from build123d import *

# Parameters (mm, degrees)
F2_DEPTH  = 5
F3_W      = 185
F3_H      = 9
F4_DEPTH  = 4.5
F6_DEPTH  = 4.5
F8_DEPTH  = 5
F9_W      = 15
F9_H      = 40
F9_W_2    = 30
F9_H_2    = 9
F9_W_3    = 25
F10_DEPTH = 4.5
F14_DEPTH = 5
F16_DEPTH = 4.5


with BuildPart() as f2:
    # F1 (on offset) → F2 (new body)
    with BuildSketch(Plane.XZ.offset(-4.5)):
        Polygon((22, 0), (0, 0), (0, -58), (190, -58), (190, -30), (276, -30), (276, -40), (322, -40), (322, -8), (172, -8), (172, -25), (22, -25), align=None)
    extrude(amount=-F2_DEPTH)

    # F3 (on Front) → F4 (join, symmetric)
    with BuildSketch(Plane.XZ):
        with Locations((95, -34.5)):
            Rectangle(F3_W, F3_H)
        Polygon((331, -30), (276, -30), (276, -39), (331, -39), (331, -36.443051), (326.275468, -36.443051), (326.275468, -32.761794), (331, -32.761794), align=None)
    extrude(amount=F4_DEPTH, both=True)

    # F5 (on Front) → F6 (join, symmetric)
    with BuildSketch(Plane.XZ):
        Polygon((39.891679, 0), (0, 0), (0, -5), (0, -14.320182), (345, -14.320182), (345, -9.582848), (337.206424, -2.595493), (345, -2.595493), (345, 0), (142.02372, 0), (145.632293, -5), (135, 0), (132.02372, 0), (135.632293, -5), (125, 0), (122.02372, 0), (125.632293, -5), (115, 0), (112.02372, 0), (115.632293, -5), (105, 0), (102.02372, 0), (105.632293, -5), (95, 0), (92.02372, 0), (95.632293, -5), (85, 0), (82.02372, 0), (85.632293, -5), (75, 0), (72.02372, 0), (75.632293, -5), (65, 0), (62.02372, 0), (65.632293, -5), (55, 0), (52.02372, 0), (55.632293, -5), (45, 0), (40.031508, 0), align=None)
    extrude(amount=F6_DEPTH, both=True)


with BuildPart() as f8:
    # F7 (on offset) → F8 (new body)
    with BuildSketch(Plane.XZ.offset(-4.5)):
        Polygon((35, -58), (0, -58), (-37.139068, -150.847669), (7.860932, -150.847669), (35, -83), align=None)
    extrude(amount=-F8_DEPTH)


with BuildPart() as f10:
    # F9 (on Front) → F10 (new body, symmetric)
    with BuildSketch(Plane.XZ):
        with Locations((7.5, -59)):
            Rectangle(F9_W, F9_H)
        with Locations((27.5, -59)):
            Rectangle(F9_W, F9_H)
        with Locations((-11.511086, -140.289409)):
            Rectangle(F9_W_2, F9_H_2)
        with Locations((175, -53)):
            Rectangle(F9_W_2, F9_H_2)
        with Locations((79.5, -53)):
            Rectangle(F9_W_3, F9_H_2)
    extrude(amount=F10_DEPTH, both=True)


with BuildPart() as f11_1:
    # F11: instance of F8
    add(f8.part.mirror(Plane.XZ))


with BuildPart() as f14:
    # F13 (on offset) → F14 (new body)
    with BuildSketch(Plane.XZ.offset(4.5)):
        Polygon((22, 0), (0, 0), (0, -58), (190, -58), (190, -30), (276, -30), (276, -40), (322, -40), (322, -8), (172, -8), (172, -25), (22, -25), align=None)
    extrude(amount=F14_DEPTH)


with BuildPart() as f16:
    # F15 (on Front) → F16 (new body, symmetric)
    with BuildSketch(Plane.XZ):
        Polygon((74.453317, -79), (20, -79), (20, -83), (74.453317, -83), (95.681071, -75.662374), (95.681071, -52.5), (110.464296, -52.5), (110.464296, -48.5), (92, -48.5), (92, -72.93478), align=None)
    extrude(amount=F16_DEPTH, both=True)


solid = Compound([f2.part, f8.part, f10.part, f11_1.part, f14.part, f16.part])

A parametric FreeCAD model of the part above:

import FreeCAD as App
import Part
import Sketcher


def add_polygon(sketch, points):
    """Adds a closed chain of lines whose ends are joined by coincident constraints."""
    first, n = sketch.GeometryCount, len(points)
    for a, b in zip(points, points[1:] + points[:1]):
        sketch.addGeometry(Part.LineSegment(App.Vector(*a, 0), App.Vector(*b, 0)), False)
    for i in range(n):
        sketch.addConstraint(Sketcher.Constraint("Coincident", first + i, 2, first + (i + 1) % n, 1))

doc = App.newDocument("Part")
body = doc.addObject("PartDesign::Body", "Body")

# Sketch on XZ plane
sketch1 = body.newObject("Sketcher::SketchObject", "Sketch")
sketch1.AttachmentSupport = (doc.getObject("XZ_Plane"), [""])
sketch1.MapMode = "FlatFace"
sketch1.AttachmentOffset = App.Placement(App.Vector(0, 0, -4.5), App.Rotation())
add_polygon(sketch1, [(22, 0), (0, 0), (0, -58), (190, -58), (190, -30), (276, -30), (276, -40), (322, -40), (322, -8), (172, -8), (172, -25), (22, -25)])  # lines 0-11
sketch1.addConstraint([
    Sketcher.Constraint("Horizontal", 0),
    Sketcher.Constraint("Vertical", 1),
    Sketcher.Constraint("Horizontal", 2),
    Sketcher.Constraint("Vertical", 3),
    Sketcher.Constraint("Horizontal", 4),
    Sketcher.Constraint("Vertical", 5),
    Sketcher.Constraint("Horizontal", 6),
    Sketcher.Constraint("Vertical", 7),
    Sketcher.Constraint("Horizontal", 8),
    Sketcher.Constraint("Vertical", 9),
    Sketcher.Constraint("Horizontal", 10),
    Sketcher.Constraint("Vertical", 11),
    Sketcher.Constraint("Coincident", 0, 2, -1, 1),
    Sketcher.Constraint("Equal", 8, 10),
    Sketcher.Constraint("DistanceX", 0, 2, 0, 1, 22.0),
    Sketcher.Constraint("DistanceX", 2, 1, 2, 2, 190.0),
    Sketcher.Constraint("DistanceX", 4, 1, 4, 2, 86.0),
    Sketcher.Constraint("DistanceX", 6, 1, 6, 2, 46.0),
    Sketcher.Constraint("DistanceY", 1, 2, 1, 1, 58.0),
    Sketcher.Constraint("DistanceY", 3, 1, 3, 2, 28.0),
    Sketcher.Constraint("DistanceY", 5, 2, 5, 1, 10.0),
    Sketcher.Constraint("DistanceY", 7, 1, 7, 2, 32.0),
    Sketcher.Constraint("DistanceY", 9, 2, 9, 1, 17.0),
])
pad1 = body.newObject("PartDesign::Pad", "Pad")
pad1.Profile = sketch1
pad1.Length = 5
pad1.Reversed = True

# Sketch on XZ plane
sketch2 = body.newObject("Sketcher::SketchObject", "Sketch001")
sketch2.AttachmentSupport = (doc.getObject("XZ_Plane"), [""])
sketch2.MapMode = "FlatFace"
add_polygon(sketch2, [(2.5, -30), (2.5, -39), (187.5, -39), (187.5, -30)])  # lines 0-3
add_polygon(sketch2, [(331, -30), (276, -30), (276, -39), (331, -39), (331, -36.4), (326.3, -36.4), (326.3, -32.8), (331, -32.8)])  # lines 4-11
sketch2.addConstraint([
    Sketcher.Constraint("Vertical", 0),
    Sketcher.Constraint("Horizontal", 1),
    Sketcher.Constraint("Vertical", 2),
    Sketcher.Constraint("Horizontal", 3),
    Sketcher.Constraint("Horizontal", 4),
    Sketcher.Constraint("Vertical", 5),
    Sketcher.Constraint("Horizontal", 6),
    Sketcher.Constraint("Vertical", 7),
    Sketcher.Constraint("Horizontal", 8),
    Sketcher.Constraint("Vertical", 9),
    Sketcher.Constraint("Horizontal", 10),
    Sketcher.Constraint("Vertical", 11),
    Sketcher.Constraint("Horizontal", 3, 2, 4, 2),
    Sketcher.Constraint("Horizontal", 1, 2, 5, 2),
    Sketcher.Constraint("Vertical", 7, 2, 10, 2),
    Sketcher.Constraint("DistanceX", 1, 1, 1, 2, 185.0),
    Sketcher.Constraint("DistanceX", 4, 2, 4, 1, 55.0),
    Sketcher.Constraint("DistanceY", 0, 2, 0, 1, 9.0),
    Sketcher.Constraint("DistanceY", 0, 2, -1, 1, 39.0),
    Sketcher.Constraint("DistanceX", -1, 1, 4, 2, 276.0),
    Sketcher.Constraint("DistanceX", -1, 1, 0, 2, 2.5),
    Sketcher.Constraint("DistanceY", 7, 1, 7, 2, 2.556949),
    Sketcher.Constraint("DistanceX", 8, 2, 8, 1, 4.724532),
    Sketcher.Constraint("DistanceY", 9, 1, 9, 2, 3.681257),
])
pad2 = body.newObject("PartDesign::Pad", "Pad001")
pad2.Profile = sketch2
pad2.Length = 9
pad2.Midplane = True

# Sketch on XZ plane
sketch3 = body.newObject("Sketcher::SketchObject", "Sketch002")
sketch3.AttachmentSupport = (doc.getObject("XZ_Plane"), [""])
sketch3.MapMode = "FlatFace"
add_polygon(sketch3, [(0, 0), (0, -14.3), (345, -14.3), (345, -9.6), (337.2, -2.6), (345, -2.6), (345, 0), (142, 0), (145.6, -5), (135, 0), (132, 0), (135.6, -5), (125, 0), (122, 0), (125.6, -5), (115, 0), (112, 0), (115.6, -5), (105, 0), (102, 0), (105.6, -5), (95, 0), (92, 0), (95.6, -5), (85, 0), (82, 0), (85.6, -5), (75, 0), (72, 0), (75.6, -5), (65, 0), (62, 0), (65.6, -5), (55, 0), (52, 0), (55.6, -5), (45, 0)])  # lines 0-36
sketch3.addConstraint([
    Sketcher.Constraint("Vertical", 0),
    Sketcher.Constraint("Horizontal", 1),
    Sketcher.Constraint("Vertical", 2),
    Sketcher.Constraint("Horizontal", 4),
    Sketcher.Constraint("Vertical", 5),
    Sketcher.Constraint("Horizontal", 6),
    Sketcher.Constraint("Horizontal", 9),
    Sketcher.Constraint("Horizontal", 12),
    Sketcher.Constraint("Horizontal", 15),
    Sketcher.Constraint("Horizontal", 18),
    Sketcher.Constraint("Horizontal", 21),
    Sketcher.Constraint("Horizontal", 24),
    Sketcher.Constraint("Horizontal", 27),
    Sketcher.Constraint("Horizontal", 30),
    Sketcher.Constraint("Horizontal", 33),
    Sketcher.Constraint("Horizontal", 36),
    Sketcher.Constraint("Coincident", 36, 2, -1, 1),
    Sketcher.Constraint("PointOnObject", 5, 2, -1),
    Sketcher.Constraint("PointOnObject", 8, 2, -1),
    Sketcher.Constraint("PointOnObject", 11, 2, -1),
    Sketcher.Constraint("PointOnObject", 14, 2, -1),
    Sketcher.Constraint("PointOnObject", 17, 2, -1),
    Sketcher.Constraint("PointOnObject", 20, 2, -1),
    Sketcher.Constraint("PointOnObject", 23, 2, -1),
    Sketcher.Constraint("PointOnObject", 26, 2, -1),
    Sketcher.Constraint("PointOnObject", 29, 2, -1),
    Sketcher.Constraint("PointOnObject", 32, 2, -1),
    Sketcher.Constraint("Parallel", 7, 10),
    Sketcher.Constraint("Parallel", 8, 11),
    Sketcher.Constraint("Parallel", 10, 13),
    Sketcher.Constraint("Parallel", 11, 14),
    Sketcher.Constraint("Parallel", 13, 16),
    Sketcher.Constraint("Parallel", 14, 17),
    Sketcher.Constraint("Parallel", 16, 19),
    Sketcher.Constraint("Parallel", 17, 20),
    Sketcher.Constraint("Parallel", 19, 22),
    Sketcher.Constraint("Parallel", 20, 23),
    Sketcher.Constraint("Parallel", 22, 25),
    Sketcher.Constraint("Parallel", 23, 26),
    Sketcher.Constraint("Parallel", 25, 28),
    Sketcher.Constraint("Parallel", 26, 29),
    Sketcher.Constraint("Parallel", 28, 31),
    Sketcher.Constraint("Parallel", 29, 32),
    Sketcher.Constraint("Parallel", 31, 34),
    Sketcher.Constraint("Parallel", 32, 35),
    Sketcher.Constraint("Horizontal", 7, 2, 10, 2),
    Sketcher.Constraint("Horizontal", 10, 2, 13, 2),
    Sketcher.Constraint("Horizontal", 13, 2, 16, 2),
    Sketcher.Constraint("Horizontal", 16, 2, 19, 2),
    Sketcher.Constraint("Horizontal", 19, 2, 22, 2),
    Sketcher.Constraint("Horizontal", 22, 2, 25, 2),
    Sketcher.Constraint("Horizontal", 25, 2, 28, 2),
    Sketcher.Constraint("Horizontal", 28, 2, 31, 2),
    Sketcher.Constraint("Horizontal", 31, 2, 34, 2),
    Sketcher.Constraint("Vertical", 2, 2, 4, 2),
    Sketcher.Constraint("Equal", 9, 12),
    Sketcher.Constraint("Equal", 12, 15),
    Sketcher.Constraint("Equal", 15, 18),
    Sketcher.Constraint("Equal", 18, 21),
    Sketcher.Constraint("Equal", 21, 24),
    Sketcher.Constraint("Equal", 24, 27),
    Sketcher.Constraint("Equal", 27, 30),
    Sketcher.Constraint("Equal", 30, 33),
    Sketcher.Constraint("DistanceX", 1, 1, 1, 2, 345.0),
    Sketcher.Constraint("DistanceX", 36, 2, 36, 1, 45.0),
    Sketcher.Constraint("DistanceY", 7, 2, -1, 1, 5.0),
    Sketcher.Constraint("DistanceX", -1, 1, 8, 2, 135.0),
    Sketcher.Constraint("DistanceX", 6, 2, 6, 1, 202.97628),
    Sketcher.Constraint("Distance", 7, 6.166182),
    Sketcher.Constraint("DistanceX", 4, 1, 4, 2, 7.793576),
    Sketcher.Constraint("DistanceY", 0, 2, 0, 1, 14.320182),
    Sketcher.Constraint("DistanceY", 2, 1, 2, 2, 4.737334),
    Sketcher.Constraint("DistanceY", 5, 1, 5, 2, 2.595493),
])
pad3 = body.newObject("PartDesign::Pad", "Pad002")
pad3.Profile = sketch3
pad3.Length = 9
pad3.Midplane = True
body2 = doc.addObject("PartDesign::Body", "Body001")

# Sketch on XZ plane
sketch4 = body2.newObject("Sketcher::SketchObject", "Sketch003")
sketch4.AttachmentSupport = (doc.getObject("XZ_Plane001"), [""])
sketch4.MapMode = "FlatFace"
sketch4.AttachmentOffset = App.Placement(App.Vector(0, 0, -4.5), App.Rotation())
add_polygon(sketch4, [(35, -58), (0, -58), (-37, -151), (8, -151), (35, -83)])  # lines 0-4
sketch4.addConstraint([
    Sketcher.Constraint("Horizontal", 0),
    Sketcher.Constraint("Horizontal", 2),
    Sketcher.Constraint("Vertical", 4),
    Sketcher.Constraint("PointOnObject", 0, 2, -2),
    Sketcher.Constraint("Parallel", 1, 3),
    Sketcher.Constraint("DistanceX", 0, 2, 0, 1, 35.0),
    Sketcher.Constraint("DistanceX", 2, 1, 2, 2, 45.0),
    Sketcher.Constraint("DistanceY", 4, 1, 4, 2, 25.0),
    Sketcher.Constraint("Distance", 1, 100.0),
    Sketcher.Constraint("DistanceY", 0, 2, -1, 1, 58.0),
])
pad4 = body2.newObject("PartDesign::Pad", "Pad003")
pad4.Profile = sketch4
pad4.Length = 5
pad4.Reversed = True
body3 = doc.addObject("PartDesign::Body", "Body002")
body3.AllowCompound = True

# Sketch on XZ plane
sketch5 = body3.newObject("Sketcher::SketchObject", "Sketch004")
sketch5.AttachmentSupport = (doc.getObject("XZ_Plane002"), [""])
sketch5.MapMode = "FlatFace"
add_polygon(sketch5, [(0, -39), (0, -79), (15, -79), (15, -39)])  # lines 0-3
add_polygon(sketch5, [(20, -39), (20, -79), (35, -79), (35, -39)])  # lines 4-7
add_polygon(sketch5, [(-27, -136), (-27, -145), (3, -145), (3, -136)])  # lines 8-11
add_polygon(sketch5, [(160, -48), (160, -58), (190, -58), (190, -48)])  # lines 12-15
add_polygon(sketch5, [(67, -48), (67, -58), (92, -58), (92, -48)])  # lines 16-19
sketch5.addConstraint([
    Sketcher.Constraint("Vertical", 0),
    Sketcher.Constraint("Horizontal", 1),
    Sketcher.Constraint("Vertical", 2),
    Sketcher.Constraint("Horizontal", 3),
    Sketcher.Constraint("Vertical", 4),
    Sketcher.Constraint("Horizontal", 5),
    Sketcher.Constraint("Vertical", 6),
    Sketcher.Constraint("Horizontal", 7),
    Sketcher.Constraint("Vertical", 8),
    Sketcher.Constraint("Horizontal", 9),
    Sketcher.Constraint("Vertical", 10),
    Sketcher.Constraint("Horizontal", 11),
    Sketcher.Constraint("Vertical", 12),
    Sketcher.Constraint("Horizontal", 13),
    Sketcher.Constraint("Vertical", 14),
    Sketcher.Constraint("Horizontal", 15),
    Sketcher.Constraint("Vertical", 16),
    Sketcher.Constraint("Horizontal", 17),
    Sketcher.Constraint("Vertical", 18),
    Sketcher.Constraint("Horizontal", 19),
    Sketcher.Constraint("PointOnObject", 0, 2, -2),
    Sketcher.Constraint("Horizontal", 1, 2, 4, 2),
    Sketcher.Constraint("Horizontal", 3, 2, 6, 2),
    Sketcher.Constraint("Horizontal", 13, 2, 16, 2),
    Sketcher.Constraint("Horizontal", 15, 2, 18, 2),
    Sketcher.Constraint("Equal", 3, 5),
    Sketcher.Constraint("Equal", 11, 13),
    Sketcher.Constraint("Equal", 10, 12),
    Sketcher.Constraint("DistanceX", 1, 1, 1, 2, 15.0),
    Sketcher.Constraint("DistanceX", 9, 1, 9, 2, 30.0),
    Sketcher.Constraint("DistanceX", 17, 1, 17, 2, 25.0),
    Sketcher.Constraint("DistanceY", 0, 2, 0, 1, 40.0),
    Sketcher.Constraint("DistanceY", 8, 2, 8, 1, 9.0),
    Sketcher.Constraint("DistanceY", 0, 2, -1, 1, 79.0),
    Sketcher.Constraint("DistanceX", -1, 1, 4, 2, 20.0),
    Sketcher.Constraint("DistanceX", -1, 1, 12, 2, 160.0),
    Sketcher.Constraint("DistanceX", -1, 1, 16, 2, 67.0),
    Sketcher.Constraint("DistanceY", 12, 2, -1, 1, 57.5),
    Sketcher.Constraint("DistanceY", 8, 2, -1, 1, 144.789409),
    Sketcher.Constraint("DistanceX", 8, 2, -1, 1, 26.511086),
])
pad5 = body3.newObject("PartDesign::Pad", "Pad004")
pad5.Profile = sketch5
pad5.Length = 9
pad5.Midplane = True
body4 = doc.addObject("PartDesign::Body", "Body003")
doc.recompute()

mirroring = doc.addObject("Part::Mirroring", "Mirroring")
mirroring.Source = body2
mirroring.Base = App.Vector(0, 0, 0)
mirroring.Normal = App.Vector(0, -1, 0)
body4.BaseFeature = mirroring
doc.recompute()
body5 = doc.addObject("PartDesign::Body", "Body004")

# Sketch on XZ plane
sketch6 = body5.newObject("Sketcher::SketchObject", "Sketch005")
sketch6.AttachmentSupport = (doc.getObject("XZ_Plane004"), [""])
sketch6.MapMode = "FlatFace"
sketch6.AttachmentOffset = App.Placement(App.Vector(0, 0, 4.5), App.Rotation())
add_polygon(sketch6, [(22, 0), (0, 0), (0, -58), (190, -58), (190, -30), (276, -30), (276, -40), (322, -40), (322, -8), (172, -8), (172, -25), (22, -25)])  # lines 0-11
sketch6.addConstraint([
    Sketcher.Constraint("Horizontal", 0),
    Sketcher.Constraint("Vertical", 1),
    Sketcher.Constraint("Horizontal", 2),
    Sketcher.Constraint("Vertical", 3),
    Sketcher.Constraint("Horizontal", 4),
    Sketcher.Constraint("Vertical", 5),
    Sketcher.Constraint("Horizontal", 6),
    Sketcher.Constraint("Vertical", 7),
    Sketcher.Constraint("Horizontal", 8),
    Sketcher.Constraint("Vertical", 9),
    Sketcher.Constraint("Horizontal", 10),
    Sketcher.Constraint("Vertical", 11),
    Sketcher.Constraint("Coincident", 0, 2, -1, 1),
    Sketcher.Constraint("Equal", 8, 10),
    Sketcher.Constraint("DistanceX", 0, 2, 0, 1, 22.0),
    Sketcher.Constraint("DistanceX", 2, 1, 2, 2, 190.0),
    Sketcher.Constraint("DistanceX", 4, 1, 4, 2, 86.0),
    Sketcher.Constraint("DistanceX", 6, 1, 6, 2, 46.0),
    Sketcher.Constraint("DistanceY", 1, 2, 1, 1, 58.0),
    Sketcher.Constraint("DistanceY", 3, 1, 3, 2, 28.0),
    Sketcher.Constraint("DistanceY", 5, 2, 5, 1, 10.0),
    Sketcher.Constraint("DistanceY", 7, 1, 7, 2, 32.0),
    Sketcher.Constraint("DistanceY", 9, 2, 9, 1, 17.0),
])
pad6 = body5.newObject("PartDesign::Pad", "Pad005")
pad6.Profile = sketch6
pad6.Length = 5
body6 = doc.addObject("PartDesign::Body", "Body005")

# Sketch on XZ plane
sketch7 = body6.newObject("Sketcher::SketchObject", "Sketch006")
sketch7.AttachmentSupport = (doc.getObject("XZ_Plane005"), [""])
sketch7.MapMode = "FlatFace"
add_polygon(sketch7, [(74.5, -79), (20, -79), (20, -83), (74.5, -83), (95.7, -75.7), (95.7, -52.5), (110.5, -52.5), (110.5, -48.5), (92, -48.5), (92, -72.9)])  # lines 0-9
sketch7.addConstraint([
    Sketcher.Constraint("Horizontal", 0),
    Sketcher.Constraint("Vertical", 1),
    Sketcher.Constraint("Horizontal", 2),
    Sketcher.Constraint("Vertical", 4),
    Sketcher.Constraint("Horizontal", 5),
    Sketcher.Constraint("Vertical", 6),
    Sketcher.Constraint("Horizontal", 7),
    Sketcher.Constraint("Vertical", 8),
    Sketcher.Constraint("Parallel", 3, 9),
    Sketcher.Constraint("Vertical", 2, 2, 9, 2),
    Sketcher.Constraint("Equal", 1, 6),
    Sketcher.Constraint("DistanceY", 1, 2, 1, 1, 4.0),
    Sketcher.Constraint("DistanceX", -1, 1, 0, 2, 20.0),
    Sketcher.Constraint("DistanceY", 0, 2, -1, 1, 79.0),
    Sketcher.Constraint("DistanceX", -1, 1, 7, 2, 92.0),
    Sketcher.Constraint("DistanceY", 4, 2, -1, 1, 52.5),
    Sketcher.Constraint("DistanceY", 8, 2, 8, 1, 24.43478),
    Sketcher.Constraint("Distance", 3, 22.460149),
    Sketcher.Constraint("Distance", 9, 18.56537),
    Sketcher.Constraint("DistanceX", 5, 1, 5, 2, 14.783225),
])
pad7 = body6.newObject("PartDesign::Pad", "Pad006")
pad7.Profile = sketch7
pad7.Length = 9
pad7.Midplane = True
mirroring.Visibility = False

doc.recompute()
